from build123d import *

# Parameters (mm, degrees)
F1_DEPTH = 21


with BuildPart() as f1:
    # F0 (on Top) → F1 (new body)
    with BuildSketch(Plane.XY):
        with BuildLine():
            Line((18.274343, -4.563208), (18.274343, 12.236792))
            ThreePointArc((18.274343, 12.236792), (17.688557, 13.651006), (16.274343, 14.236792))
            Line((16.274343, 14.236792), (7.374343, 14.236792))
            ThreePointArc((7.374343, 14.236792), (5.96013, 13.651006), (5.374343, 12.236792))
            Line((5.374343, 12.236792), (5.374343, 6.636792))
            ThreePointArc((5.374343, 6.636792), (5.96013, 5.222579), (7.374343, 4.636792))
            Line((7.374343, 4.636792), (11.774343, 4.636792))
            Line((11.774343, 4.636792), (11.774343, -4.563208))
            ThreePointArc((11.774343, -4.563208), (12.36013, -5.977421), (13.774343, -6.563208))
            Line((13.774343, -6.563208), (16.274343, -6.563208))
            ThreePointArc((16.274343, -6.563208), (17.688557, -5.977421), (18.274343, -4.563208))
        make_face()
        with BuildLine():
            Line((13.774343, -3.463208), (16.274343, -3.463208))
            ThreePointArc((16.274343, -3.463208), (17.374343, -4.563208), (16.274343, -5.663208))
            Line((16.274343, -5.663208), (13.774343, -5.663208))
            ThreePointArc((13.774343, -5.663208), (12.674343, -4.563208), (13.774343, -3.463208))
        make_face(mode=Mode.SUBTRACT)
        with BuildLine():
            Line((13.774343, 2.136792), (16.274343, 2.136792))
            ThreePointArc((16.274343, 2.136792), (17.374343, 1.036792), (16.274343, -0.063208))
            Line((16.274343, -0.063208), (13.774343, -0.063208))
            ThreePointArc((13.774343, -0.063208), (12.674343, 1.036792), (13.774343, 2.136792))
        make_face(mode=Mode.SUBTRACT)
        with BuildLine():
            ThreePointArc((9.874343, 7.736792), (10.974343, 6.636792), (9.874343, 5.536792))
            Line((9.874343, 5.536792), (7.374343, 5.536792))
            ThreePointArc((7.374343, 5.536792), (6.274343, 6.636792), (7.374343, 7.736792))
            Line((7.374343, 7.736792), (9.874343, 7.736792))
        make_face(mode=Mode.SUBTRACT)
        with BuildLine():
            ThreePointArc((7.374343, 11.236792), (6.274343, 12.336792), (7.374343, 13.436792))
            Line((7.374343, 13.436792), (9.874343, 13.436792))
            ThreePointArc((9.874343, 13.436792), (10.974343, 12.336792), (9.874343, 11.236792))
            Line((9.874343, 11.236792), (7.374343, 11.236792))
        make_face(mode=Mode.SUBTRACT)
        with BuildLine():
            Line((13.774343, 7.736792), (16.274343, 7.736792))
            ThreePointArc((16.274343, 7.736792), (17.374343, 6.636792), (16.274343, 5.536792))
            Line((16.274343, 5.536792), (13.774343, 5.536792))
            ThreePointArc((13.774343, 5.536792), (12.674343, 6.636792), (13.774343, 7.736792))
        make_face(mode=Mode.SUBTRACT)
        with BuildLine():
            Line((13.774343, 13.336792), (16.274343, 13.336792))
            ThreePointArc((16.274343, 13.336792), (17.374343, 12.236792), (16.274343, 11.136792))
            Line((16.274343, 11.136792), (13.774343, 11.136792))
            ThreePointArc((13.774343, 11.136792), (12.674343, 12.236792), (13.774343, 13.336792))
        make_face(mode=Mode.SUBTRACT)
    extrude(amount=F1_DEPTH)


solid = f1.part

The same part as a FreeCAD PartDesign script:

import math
import FreeCAD as App
import Part
import Sketcher
from FreeCAD import Vector

doc = App.newDocument("Part")
body = doc.addObject("PartDesign::Body", "Body")

# Sketch on XY plane
sketch1 = body.newObject("Sketcher::SketchObject", "Sketch")
sketch1.AttachmentSupport = (doc.getObject("XY_Plane"), [""])
sketch1.MapMode = "FlatFace"
sketch1.addGeometry(Part.LineSegment(Vector(18.3, -4.6, 0), Vector(18.3, 12.2, 0)), False)
sketch1.addGeometry(Part.ArcOfCircle(Part.Circle(Vector(16.3, 12.2, 0), Vector(0, 0, 1), 2), math.radians(0), math.radians(90)), False)
sketch1.addGeometry(Part.LineSegment(Vector(16.3, 14.2, 0), Vector(7.4, 14.2, 0)), False)
sketch1.addGeometry(Part.ArcOfCircle(Part.Circle(Vector(7.4, 12.2, 0), Vector(0, 0, 1), 2), math.radians(90), math.radians(180)), False)
sketch1.addGeometry(Part.LineSegment(Vector(5.4, 12.2, 0), Vector(5.4, 6.6, 0)), False)
sketch1.addGeometry(Part.ArcOfCircle(Part.Circle(Vector(7.4, 6.6, 0), Vector(0, 0, 1), 2), math.radians(-180), math.radians(-90)), False)
sketch1.addGeometry(Part.LineSegment(Vector(7.4, 4.6, 0), Vector(11.8, 4.6, 0)), False)
sketch1.addGeometry(Part.LineSegment(Vector(11.8, 4.6, 0), Vector(11.8, -4.6, 0)), False)
sketch1.addGeometry(Part.ArcOfCircle(Part.Circle(Vector(13.8, -4.6, 0), Vector(0, 0, 1), 2), math.radians(-180), math.radians(-90)), False)
sketch1.addGeometry(Part.LineSegment(Vector(13.8, -6.6, 0), Vector(16.3, -6.6, 0)), False)
sketch1.addGeometry(Part.ArcOfCircle(Part.Circle(Vector(16.3, -4.6, 0), Vector(0, 0, 1), 2), math.radians(-90), math.radians(0)), False)
sketch1.addGeometry(Part.ArcOfCircle(Part.Circle(Vector(13.8, -4.6, 0), Vector(0, 0, 1), 1.1), math.radians(90), math.radians(270)), False)
sketch1.addGeometry(Part.LineSegment(Vector(13.8, -3.5, 0), Vector(16.3, -3.5, 0)), False)
sketch1.addGeometry(Part.ArcOfCircle(Part.Circle(Vector(16.3, -4.6, 0), Vector(0, 0, 1), 1.1), math.radians(-90), math.radians(90)), False)
sketch1.addGeometry(Part.LineSegment(Vector(16.3, -5.7, 0), Vector(13.8, -5.7, 0)), False)
sketch1.addGeometry(Part.ArcOfCircle(Part.Circle(Vector(13.8, 1, 0), Vector(0, 0, 1), 1.1), math.radians(90), math.radians(270)), False)
sketch1.addGeometry(Part.LineSegment(Vector(13.8, 2.1, 0), Vector(16.3, 2.1, 0)), False)
sketch1.addGeometry(Part.ArcOfCircle(Part.Circle(Vector(16.3, 1, 0), Vector(0, 0, 1), 1.1), math.radians(-90), math.radians(90)), False)
sketch1.addGeometry(Part.LineSegment(Vector(16.3, -0.1, 0), Vector(13.8, -0.1, 0)), False)
sketch1.addGeometry(Part.LineSegment(Vector(7.4, 7.7, 0), Vector(9.9, 7.7, 0)), False)
sketch1.addGeometry(Part.ArcOfCircle(Part.Circle(Vector(9.9, 6.6, 0), Vector(0, 0, 1), 1.1), math.radians(-90), math.radians(90)), False)
sketch1.addGeometry(Part.LineSegment(Vector(9.9, 5.5, 0), Vector(7.4, 5.5, 0)), False)
sketch1.addGeometry(Part.ArcOfCircle(Part.Circle(Vector(7.4, 6.6, 0), Vector(0, 0, 1), 1.1), math.radians(90), math.radians(270)), False)
sketch1.addGeometry(Part.LineSegment(Vector(9.9, 11.2, 0), Vector(7.4, 11.2, 0)), False)
sketch1.addGeometry(Part.ArcOfCircle(Part.Circle(Vector(7.4, 12.3, 0), Vector(0, 0, 1), 1.1), math.radians(90), math.radians(270)), False)
sketch1.addGeometry(Part.LineSegment(Vector(7.4, 13.4, 0), Vector(9.9, 13.4, 0)), False)
sketch1.addGeometry(Part.ArcOfCircle(Part.Circle(Vector(9.9, 12.3, 0), Vector(0, 0, 1), 1.1), math.radians(-90), math.radians(90)), False)
sketch1.addGeometry(Part.ArcOfCircle(Part.Circle(Vector(13.8, 6.6, 0), Vector(0, 0, 1), 1.1), math.radians(90), math.radians(270)), False)
sketch1.addGeometry(Part.LineSegment(Vector(13.8, 7.7, 0), Vector(16.3, 7.7, 0)), False)
sketch1.addGeometry(Part.ArcOfCircle(Part.Circle(Vector(16.3, 6.6, 0), Vector(0, 0, 1), 1.1), math.radians(-90), math.radians(90)), False)
sketch1.addGeometry(Part.LineSegment(Vector(16.3, 5.5, 0), Vector(13.8, 5.5, 0)), False)
sketch1.addGeometry(Part.ArcOfCircle(Part.Circle(Vector(13.8, 12.2, 0), Vector(0, 0, 1), 1.1), math.radians(90), math.radians(270)), False)
sketch1.addGeometry(Part.LineSegment(Vector(13.8, 13.3, 0), Vector(16.3, 13.3, 0)), False)
sketch1.addGeometry(Part.ArcOfCircle(Part.Circle(Vector(16.3, 12.2, 0), Vector(0, 0, 1), 1.1), math.radians(-90), math.radians(90)), False)
sketch1.addGeometry(Part.LineSegment(Vector(16.3, 11.1, 0), Vector(13.8, 11.1, 0)), False)
sketch1.addConstraint(Sketcher.Constraint("Tangent", 0, 2, 1, 1))
sketch1.addConstraint(Sketcher.Constraint("Tangent", 1, 2, 2, 1))
sketch1.addConstraint(Sketcher.Constraint("Tangent", 2, 2, 3, 1))
sketch1.addConstraint(Sketcher.Constraint("Tangent", 3, 2, 4, 1))
sketch1.addConstraint(Sketcher.Constraint("Tangent", 4, 2, 5, 1))
sketch1.addConstraint(Sketcher.Constraint("Tangent", 5, 2, 6, 1))
sketch1.addConstraint(Sketcher.Constraint("Coincident", 6, 2, 7, 1))
sketch1.addConstraint(Sketcher.Constraint("Tangent", 7, 2, 8, 1))
sketch1.addConstraint(Sketcher.Constraint("Tangent", 8, 2, 9, 1))
sketch1.addConstraint(Sketcher.Constraint("Tangent", 9, 2, 10, 1))
sketch1.addConstraint(Sketcher.Constraint("Tangent", 10, 2, 0, 1))
sketch1.addConstraint(Sketcher.Constraint("Tangent", 11, 1, 12, 1))
sketch1.addConstraint(Sketcher.Constraint("Tangent", 12, 2, 13, 2))
sketch1.addConstraint(Sketcher.Constraint("Tangent", 13, 1, 14, 1))
sketch1.addConstraint(Sketcher.Constraint("Tangent", 14, 2, 11, 2))
sketch1.addConstraint(Sketcher.Constraint("Tangent", 15, 1, 16, 1))
sketch1.addConstraint(Sketcher.Constraint("Tangent", 16, 2, 17, 2))
sketch1.addConstraint(Sketcher.Constraint("Tangent", 17, 1, 18, 1))
sketch1.addConstraint(Sketcher.Constraint("Tangent", 18, 2, 15, 2))
sketch1.addConstraint(Sketcher.Constraint("Tangent", 19, 2, 20, 2))
sketch1.addConstraint(Sketcher.Constraint("Tangent", 20, 1, 21, 1))
sketch1.addConstraint(Sketcher.Constraint("Tangent", 21, 2, 22, 2))
sketch1.addConstraint(Sketcher.Constraint("Tangent", 22, 1, 19, 1))
sketch1.addConstraint(Sketcher.Constraint("Tangent", 23, 2, 24, 2))
sketch1.addConstraint(Sketcher.Constraint("Tangent", 24, 1, 25, 1))
sketch1.addConstraint(Sketcher.Constraint("Tangent", 25, 2, 26, 2))
sketch1.addConstraint(Sketcher.Constraint("Tangent", 26, 1, 23, 1))
sketch1.addConstraint(Sketcher.Constraint("Tangent", 27, 1, 28, 1))
sketch1.addConstraint(Sketcher.Constraint("Tangent", 28, 2, 29, 2))
sketch1.addConstraint(Sketcher.Constraint("Tangent", 29, 1, 30, 1))
sketch1.addConstraint(Sketcher.Constraint("Tangent", 30, 2, 27, 2))
sketch1.addConstraint(Sketcher.Constraint("Tangent", 31, 1, 32, 1))
sketch1.addConstraint(Sketcher.Constraint("Tangent", 32, 2, 33, 2))
sketch1.addConstraint(Sketcher.Constraint("Tangent", 33, 1, 34, 1))
sketch1.addConstraint(Sketcher.Constraint("Tangent", 34, 2, 31, 2))
sketch1.addConstraint(Sketcher.Constraint("Vertical", 0))
sketch1.addConstraint(Sketcher.Constraint("Horizontal", 2))
sketch1.addConstraint(Sketcher.Constraint("Vertical", 4))
sketch1.addConstraint(Sketcher.Constraint("Horizontal", 6))
sketch1.addConstraint(Sketcher.Constraint("Vertical", 7))
sketch1.addConstraint(Sketcher.Constraint("Horizontal", 9))
sketch1.addConstraint(Sketcher.Constraint("Horizontal", 12))
sketch1.addConstraint(Sketcher.Constraint("Horizontal", 14))
sketch1.addConstraint(Sketcher.Constraint("Horizontal", 16))
sketch1.addConstraint(Sketcher.Constraint("Horizontal", 18))
sketch1.addConstraint(Sketcher.Constraint("Horizontal", 19))
sketch1.addConstraint(Sketcher.Constraint("Horizontal", 21))
sketch1.addConstraint(Sketcher.Constraint("Horizontal", 23))
sketch1.addConstraint(Sketcher.Constraint("Horizontal", 25))
sketch1.addConstraint(Sketcher.Constraint("Horizontal", 28))
sketch1.addConstraint(Sketcher.Constraint("Horizontal", 30))
sketch1.addConstraint(Sketcher.Constraint("Horizontal", 32))
sketch1.addConstraint(Sketcher.Constraint("Horizontal", 34))
sketch1.addConstraint(Sketcher.Constraint("Coincident", 11, 3, 8, 3))
sketch1.addConstraint(Sketcher.Constraint("Coincident", 13, 3, 10, 3))
sketch1.addConstraint(Sketcher.Constraint("Coincident", 22, 3, 5, 3))
sketch1.addConstraint(Sketcher.Constraint("Coincident", 33, 3, 1, 3))
sketch1.addConstraint(Sketcher.Constraint("Equal", 1, 3))
sketch1.addConstraint(Sketcher.Constraint("Equal", 3, 5))
sketch1.addConstraint(Sketcher.Constraint("Equal", 5, 8))
sketch1.addConstraint(Sketcher.Constraint("Equal", 13, 15))
sketch1.addConstraint(Sketcher.Constraint("Equal", 17, 20))
sketch1.addConstraint(Sketcher.Constraint("Equal", 22, 24))
sketch1.addConstraint(Sketcher.Constraint("Equal", 26, 27))
sketch1.addConstraint(Sketcher.Constraint("Equal", 29, 31))
sketch1.addConstraint(Sketcher.Constraint("Horizontal", 22, 3, 27, 3))
sketch1.addConstraint(Sketcher.Constraint("Vertical", 11, 3, 15, 3))
sketch1.addConstraint(Sketcher.Constraint("Vertical", 13, 3, 17, 3))
sketch1.addConstraint(Sketcher.Constraint("Vertical", 22, 3, 24, 3))
sketch1.addConstraint(Sketcher.Constraint("Vertical", 20, 3, 26, 3))
sketch1.addConstraint(Sketcher.Constraint("Vertical", 15, 3, 27, 3))
sketch1.addConstraint(Sketcher.Constraint("Vertical", 17, 3, 29, 3))
sketch1.addConstraint(Sketcher.Constraint("Vertical", 27, 3, 31, 3))
sketch1.addConstraint(Sketcher.Constraint("Equal", 18, 19))
sketch1.addConstraint(Sketcher.Constraint("Radius", 1, 1.999999))
sketch1.addConstraint(Sketcher.Constraint("Radius", 11, 1.1))
sketch1.addConstraint(Sketcher.Constraint("DistanceX", 2, 2, 2, 1, 8.9))
sketch1.addConstraint(Sketcher.Constraint("DistanceX", 6, 1, 6, 2, 4.4))
sketch1.addConstraint(Sketcher.Constraint("DistanceY", 0, 1, 0, 2, 16.8))
sketch1.addConstraint(Sketcher.Constraint("DistanceY", 4, 2, 4, 1, 5.6))
sketch1.addConstraint(Sketcher.Constraint("DistanceY", 23, 2, 3, 3, 1.0))
sketch1.addConstraint(Sketcher.Constraint("DistanceY", 8, 3, 15, 3, 5.599998))
sketch1.addConstraint(Sketcher.Constraint("DistanceY", -1, 1, 3, 3, 12.236792))
sketch1.addConstraint(Sketcher.Constraint("DistanceX", -1, 1, 1, 3, 16.274344))
pad1 = body.newObject("PartDesign::Pad", "Pad")
pad1.Profile = sketch1
pad1.Length = 21

doc.recompute()
